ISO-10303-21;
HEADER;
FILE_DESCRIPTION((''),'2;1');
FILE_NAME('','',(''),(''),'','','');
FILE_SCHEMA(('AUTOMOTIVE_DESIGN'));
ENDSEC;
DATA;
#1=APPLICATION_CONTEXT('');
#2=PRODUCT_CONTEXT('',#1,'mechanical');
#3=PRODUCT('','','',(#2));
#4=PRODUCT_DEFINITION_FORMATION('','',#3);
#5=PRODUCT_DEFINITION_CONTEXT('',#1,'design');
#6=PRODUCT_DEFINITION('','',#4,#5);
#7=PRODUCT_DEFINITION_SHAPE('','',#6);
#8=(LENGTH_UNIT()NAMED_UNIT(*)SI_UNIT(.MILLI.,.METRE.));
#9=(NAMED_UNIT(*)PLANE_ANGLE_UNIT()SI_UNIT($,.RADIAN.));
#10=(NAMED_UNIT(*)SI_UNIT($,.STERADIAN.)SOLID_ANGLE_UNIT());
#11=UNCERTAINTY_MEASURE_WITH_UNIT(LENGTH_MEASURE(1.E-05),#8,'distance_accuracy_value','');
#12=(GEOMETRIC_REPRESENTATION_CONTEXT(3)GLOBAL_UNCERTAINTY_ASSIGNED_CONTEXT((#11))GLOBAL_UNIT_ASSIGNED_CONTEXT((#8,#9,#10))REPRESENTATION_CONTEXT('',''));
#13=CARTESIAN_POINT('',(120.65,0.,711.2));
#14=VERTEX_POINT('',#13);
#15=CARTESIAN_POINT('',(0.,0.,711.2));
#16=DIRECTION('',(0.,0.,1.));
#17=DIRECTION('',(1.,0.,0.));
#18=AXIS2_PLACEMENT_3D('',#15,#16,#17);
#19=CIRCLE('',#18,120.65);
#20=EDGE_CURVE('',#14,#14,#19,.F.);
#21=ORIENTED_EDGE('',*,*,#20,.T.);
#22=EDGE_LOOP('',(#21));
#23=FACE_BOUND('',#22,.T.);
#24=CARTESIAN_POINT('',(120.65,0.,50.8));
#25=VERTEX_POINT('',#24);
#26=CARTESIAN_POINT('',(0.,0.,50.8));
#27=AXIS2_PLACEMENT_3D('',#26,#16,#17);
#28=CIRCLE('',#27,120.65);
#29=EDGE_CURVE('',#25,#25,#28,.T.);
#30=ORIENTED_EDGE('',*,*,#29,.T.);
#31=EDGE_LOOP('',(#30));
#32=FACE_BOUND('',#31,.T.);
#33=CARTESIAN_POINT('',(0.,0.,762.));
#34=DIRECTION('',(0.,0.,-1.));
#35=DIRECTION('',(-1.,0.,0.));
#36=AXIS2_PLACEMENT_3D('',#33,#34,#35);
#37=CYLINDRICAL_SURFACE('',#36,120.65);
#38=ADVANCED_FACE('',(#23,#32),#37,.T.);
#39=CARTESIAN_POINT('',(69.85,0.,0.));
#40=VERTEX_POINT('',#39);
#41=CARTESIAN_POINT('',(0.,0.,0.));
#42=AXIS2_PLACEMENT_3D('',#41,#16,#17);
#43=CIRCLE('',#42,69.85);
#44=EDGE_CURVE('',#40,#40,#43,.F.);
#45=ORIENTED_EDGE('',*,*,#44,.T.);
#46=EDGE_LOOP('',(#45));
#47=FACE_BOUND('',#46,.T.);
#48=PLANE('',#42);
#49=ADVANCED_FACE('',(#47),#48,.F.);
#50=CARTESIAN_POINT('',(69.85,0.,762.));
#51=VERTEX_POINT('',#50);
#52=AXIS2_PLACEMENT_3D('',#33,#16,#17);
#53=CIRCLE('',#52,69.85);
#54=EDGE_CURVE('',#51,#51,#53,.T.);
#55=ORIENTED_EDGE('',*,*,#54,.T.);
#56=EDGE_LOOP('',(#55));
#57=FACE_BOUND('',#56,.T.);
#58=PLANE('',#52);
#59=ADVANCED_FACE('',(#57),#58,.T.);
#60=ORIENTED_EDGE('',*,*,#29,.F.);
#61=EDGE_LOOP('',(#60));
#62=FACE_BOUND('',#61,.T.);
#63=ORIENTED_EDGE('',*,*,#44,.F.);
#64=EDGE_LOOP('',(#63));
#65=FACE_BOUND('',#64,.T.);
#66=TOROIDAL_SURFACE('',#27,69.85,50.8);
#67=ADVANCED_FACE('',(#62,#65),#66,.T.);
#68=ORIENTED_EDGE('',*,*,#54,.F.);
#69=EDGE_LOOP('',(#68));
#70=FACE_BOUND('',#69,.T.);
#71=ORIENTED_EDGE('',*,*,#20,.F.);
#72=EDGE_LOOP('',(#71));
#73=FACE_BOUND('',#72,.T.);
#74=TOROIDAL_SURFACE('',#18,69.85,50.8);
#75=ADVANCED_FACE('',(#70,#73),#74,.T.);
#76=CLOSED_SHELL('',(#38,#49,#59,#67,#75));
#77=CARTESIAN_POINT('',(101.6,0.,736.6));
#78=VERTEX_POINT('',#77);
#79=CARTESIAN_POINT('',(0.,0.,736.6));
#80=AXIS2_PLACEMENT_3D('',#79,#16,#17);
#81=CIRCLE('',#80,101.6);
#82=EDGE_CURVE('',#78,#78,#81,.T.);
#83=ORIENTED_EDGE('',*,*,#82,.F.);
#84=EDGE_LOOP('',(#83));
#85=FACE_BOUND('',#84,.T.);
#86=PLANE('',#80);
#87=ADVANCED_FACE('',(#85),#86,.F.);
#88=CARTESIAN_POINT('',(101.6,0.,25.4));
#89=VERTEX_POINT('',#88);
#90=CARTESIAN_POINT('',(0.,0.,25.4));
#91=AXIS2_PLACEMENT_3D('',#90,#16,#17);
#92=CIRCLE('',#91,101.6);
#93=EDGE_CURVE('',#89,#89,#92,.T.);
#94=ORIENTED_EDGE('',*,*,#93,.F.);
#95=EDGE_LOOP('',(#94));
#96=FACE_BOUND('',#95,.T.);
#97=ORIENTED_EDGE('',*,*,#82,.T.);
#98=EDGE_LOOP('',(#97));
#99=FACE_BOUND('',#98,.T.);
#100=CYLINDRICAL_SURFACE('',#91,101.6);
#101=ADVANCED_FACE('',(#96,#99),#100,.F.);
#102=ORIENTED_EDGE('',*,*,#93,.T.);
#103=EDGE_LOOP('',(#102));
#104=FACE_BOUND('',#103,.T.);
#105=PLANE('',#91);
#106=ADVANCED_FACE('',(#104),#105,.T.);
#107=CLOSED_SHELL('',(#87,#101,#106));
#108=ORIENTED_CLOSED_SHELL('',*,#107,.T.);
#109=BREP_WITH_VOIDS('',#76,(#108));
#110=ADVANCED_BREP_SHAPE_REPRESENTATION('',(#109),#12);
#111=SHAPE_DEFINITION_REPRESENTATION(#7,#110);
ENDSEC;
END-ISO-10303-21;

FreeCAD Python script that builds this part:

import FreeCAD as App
import Part
import Sketcher

V = App.Vector
Q = App.Units.Quantity


def edges_at(feature, points):
    """Names of the edges that pass closest to the given points."""
    edges = feature.Shape.Edges
    near = lambda p: min(range(len(edges)), key=lambda i: edges[i].distToShape(Part.Vertex(*p))[0])
    return sorted({f"Edge{near(p) + 1}" for p in points})

doc = App.newDocument("Part")
body = doc.addObject("PartDesign::Body", "Body")

# Sketch on XY plane
sketch1 = body.newObject("Sketcher::SketchObject", "Sketch")
sketch1.AttachmentSupport = (doc.getObject("XY_Plane"), [""])
sketch1.MapMode = "FlatFace"
sketch1.addGeometry(Part.Circle(V(0, 0, 0), V(0, 0, 1), 121), False)
sketch1.addConstraint([
    Sketcher.Constraint("Coincident", 0, 3, -1, 1),
    Sketcher.Constraint("Diameter", 0, Q("9.5 in")),
])
pad1 = body.newObject("PartDesign::Pad", "Pad")
pad1.Profile = sketch1
pad1.Length = Q("30 in")
doc.recompute()

fillet = body.newObject("PartDesign::Fillet", "Fillet")
fillet.Base = (pad1, edges_at(pad1, [(-120.65, 0, 0), (-120.65, 0, 762)]))
fillet.Radius = Q("2 in")

# Sketch on XY plane
sketch2 = body.newObject("Sketcher::SketchObject", "Sketch001")
sketch2.AttachmentSupport = (doc.getObject("XY_Plane"), [""])
sketch2.MapMode = "FlatFace"
sketch2.AttachmentOffset = App.Placement(V(0, 0, 29 * 25.4), App.Rotation())
sketch2.addGeometry(Part.Circle(V(0, 0, 0), V(0, 0, 1), 102), False)
sketch2.addConstraint([
    Sketcher.Constraint("Coincident", 0, 3, -1, 1),
    Sketcher.Constraint("Diameter", 0, Q("8 in")),
])
pocket1 = body.newObject("PartDesign::Pocket", "Pocket")
pocket1.Profile = sketch2
pocket1.Length = Q("28 in")

doc.recompute()
